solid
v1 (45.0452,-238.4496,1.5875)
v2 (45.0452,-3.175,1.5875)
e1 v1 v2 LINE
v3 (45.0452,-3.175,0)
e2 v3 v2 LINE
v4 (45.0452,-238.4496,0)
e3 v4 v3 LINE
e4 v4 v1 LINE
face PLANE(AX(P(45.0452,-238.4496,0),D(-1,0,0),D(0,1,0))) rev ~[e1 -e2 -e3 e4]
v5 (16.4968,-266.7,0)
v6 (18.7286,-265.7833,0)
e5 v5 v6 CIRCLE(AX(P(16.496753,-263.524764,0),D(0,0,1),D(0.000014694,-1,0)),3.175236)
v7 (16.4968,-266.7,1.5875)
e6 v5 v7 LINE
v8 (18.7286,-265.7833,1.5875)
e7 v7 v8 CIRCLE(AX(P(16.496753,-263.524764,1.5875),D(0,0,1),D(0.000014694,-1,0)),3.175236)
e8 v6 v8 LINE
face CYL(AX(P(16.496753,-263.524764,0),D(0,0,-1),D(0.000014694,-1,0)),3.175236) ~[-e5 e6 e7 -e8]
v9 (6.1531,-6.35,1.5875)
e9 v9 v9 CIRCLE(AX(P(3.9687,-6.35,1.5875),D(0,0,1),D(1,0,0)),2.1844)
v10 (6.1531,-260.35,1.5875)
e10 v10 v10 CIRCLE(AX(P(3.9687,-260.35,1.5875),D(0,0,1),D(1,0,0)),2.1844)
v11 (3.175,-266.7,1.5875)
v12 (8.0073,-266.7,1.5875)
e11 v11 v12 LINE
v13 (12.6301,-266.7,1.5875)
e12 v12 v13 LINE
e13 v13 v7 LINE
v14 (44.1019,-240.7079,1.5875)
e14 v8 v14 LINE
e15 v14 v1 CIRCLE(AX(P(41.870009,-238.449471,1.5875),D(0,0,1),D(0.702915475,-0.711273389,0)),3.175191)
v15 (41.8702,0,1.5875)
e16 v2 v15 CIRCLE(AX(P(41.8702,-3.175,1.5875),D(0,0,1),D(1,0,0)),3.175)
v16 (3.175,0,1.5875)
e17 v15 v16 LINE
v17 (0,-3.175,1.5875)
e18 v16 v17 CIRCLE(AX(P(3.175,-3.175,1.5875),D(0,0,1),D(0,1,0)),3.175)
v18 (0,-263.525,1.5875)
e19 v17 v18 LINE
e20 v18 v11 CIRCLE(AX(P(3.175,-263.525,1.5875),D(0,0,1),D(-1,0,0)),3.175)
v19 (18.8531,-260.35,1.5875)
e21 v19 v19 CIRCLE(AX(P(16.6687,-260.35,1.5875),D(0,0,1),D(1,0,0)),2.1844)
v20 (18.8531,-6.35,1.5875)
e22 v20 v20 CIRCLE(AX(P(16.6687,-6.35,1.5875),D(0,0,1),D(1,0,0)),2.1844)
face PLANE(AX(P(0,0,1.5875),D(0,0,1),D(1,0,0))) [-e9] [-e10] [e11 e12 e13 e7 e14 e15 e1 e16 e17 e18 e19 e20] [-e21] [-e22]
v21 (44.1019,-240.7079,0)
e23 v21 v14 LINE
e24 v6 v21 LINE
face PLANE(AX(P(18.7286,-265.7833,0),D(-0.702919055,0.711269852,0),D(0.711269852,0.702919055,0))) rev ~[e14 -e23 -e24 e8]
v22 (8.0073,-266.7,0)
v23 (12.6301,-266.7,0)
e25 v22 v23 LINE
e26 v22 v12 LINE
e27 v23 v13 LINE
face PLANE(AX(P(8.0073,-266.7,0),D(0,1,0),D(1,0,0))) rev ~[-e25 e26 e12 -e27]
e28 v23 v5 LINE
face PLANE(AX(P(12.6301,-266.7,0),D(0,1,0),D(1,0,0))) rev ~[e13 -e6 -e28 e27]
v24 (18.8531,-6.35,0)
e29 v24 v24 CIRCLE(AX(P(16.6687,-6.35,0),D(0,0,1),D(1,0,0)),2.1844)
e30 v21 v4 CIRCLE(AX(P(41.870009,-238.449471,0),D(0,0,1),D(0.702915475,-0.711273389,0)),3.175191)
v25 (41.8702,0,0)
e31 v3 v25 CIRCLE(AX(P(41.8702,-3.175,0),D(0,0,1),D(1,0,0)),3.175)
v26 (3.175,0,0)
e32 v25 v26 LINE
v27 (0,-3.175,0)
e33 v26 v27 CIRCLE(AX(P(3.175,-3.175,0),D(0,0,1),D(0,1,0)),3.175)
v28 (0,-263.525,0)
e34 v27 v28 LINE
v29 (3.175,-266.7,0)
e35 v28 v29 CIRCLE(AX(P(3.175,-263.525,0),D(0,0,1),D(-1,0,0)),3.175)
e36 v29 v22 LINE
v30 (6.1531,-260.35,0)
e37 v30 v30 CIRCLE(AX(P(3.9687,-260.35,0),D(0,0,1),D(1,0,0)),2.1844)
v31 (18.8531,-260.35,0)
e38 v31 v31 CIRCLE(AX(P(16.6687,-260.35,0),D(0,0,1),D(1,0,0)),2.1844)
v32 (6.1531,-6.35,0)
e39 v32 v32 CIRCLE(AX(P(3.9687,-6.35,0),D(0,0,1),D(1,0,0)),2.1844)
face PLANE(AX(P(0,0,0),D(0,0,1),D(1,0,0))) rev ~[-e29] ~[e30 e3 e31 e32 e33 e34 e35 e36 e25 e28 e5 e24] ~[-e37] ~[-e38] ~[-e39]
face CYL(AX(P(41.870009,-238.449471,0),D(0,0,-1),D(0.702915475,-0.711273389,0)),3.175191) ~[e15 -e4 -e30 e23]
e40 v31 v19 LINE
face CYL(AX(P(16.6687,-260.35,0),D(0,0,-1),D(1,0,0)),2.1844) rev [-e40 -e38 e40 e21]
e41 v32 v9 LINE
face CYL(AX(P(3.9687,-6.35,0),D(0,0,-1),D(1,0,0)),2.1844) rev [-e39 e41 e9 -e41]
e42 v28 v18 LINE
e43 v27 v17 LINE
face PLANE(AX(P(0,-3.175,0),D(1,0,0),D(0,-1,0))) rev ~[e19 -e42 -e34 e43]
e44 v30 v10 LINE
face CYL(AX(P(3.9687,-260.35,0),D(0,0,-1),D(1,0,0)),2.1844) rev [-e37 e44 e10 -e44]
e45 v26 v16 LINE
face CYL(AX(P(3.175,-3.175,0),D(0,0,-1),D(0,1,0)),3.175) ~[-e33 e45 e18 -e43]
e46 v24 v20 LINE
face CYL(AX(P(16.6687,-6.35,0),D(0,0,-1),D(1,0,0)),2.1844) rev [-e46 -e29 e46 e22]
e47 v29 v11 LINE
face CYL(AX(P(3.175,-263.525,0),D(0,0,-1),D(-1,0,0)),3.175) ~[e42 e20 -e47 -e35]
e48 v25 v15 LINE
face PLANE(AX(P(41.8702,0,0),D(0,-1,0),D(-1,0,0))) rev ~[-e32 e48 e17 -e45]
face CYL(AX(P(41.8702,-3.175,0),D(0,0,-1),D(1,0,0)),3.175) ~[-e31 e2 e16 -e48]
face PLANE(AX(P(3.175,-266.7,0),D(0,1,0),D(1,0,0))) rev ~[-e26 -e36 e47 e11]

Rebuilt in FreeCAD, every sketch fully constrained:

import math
import FreeCAD as App
import Part
import Sketcher
from FreeCAD import Vector
Q = App.Units.Quantity

doc = App.newDocument("Part")
body = doc.addObject("PartDesign::Body", "Body")

sketch1 = body.newObject("Sketcher::SketchObject", "Sketch")
sketch1.AttachmentSupport = (doc.getObject("XY_Plane"), [""])
sketch1.MapMode = "FlatFace"
sketch1.addGeometry([
    Part.ArcOfCircle(Part.Circle(Vector(3.2, -263.5, 0), Vector(0, 0, 1), 3.2), math.radians(180), math.radians(270)),
    Part.LineSegment(Vector(3.2, -266.7, 0), Vector(16.5, -266.7, 0)),
    Part.ArcOfCircle(Part.Circle(Vector(16.5, -263.5, 0), Vector(0, 0, 1), 3.2), math.radians(-90), math.radians(-45)),
    Part.LineSegment(Vector(18.7, -265.8, 0), Vector(44.1, -240.7, 0)),
    Part.ArcOfCircle(Part.Circle(Vector(41.9, -238.4, 0), Vector(0, 0, 1), 3.2), math.radians(-45), math.radians(0)),
    Part.LineSegment(Vector(45, -238.4, 0), Vector(45, -3.2, 0)),
    Part.ArcOfCircle(Part.Circle(Vector(41.9, -3.2, 0), Vector(0, 0, 1), 3.2), math.radians(0), math.radians(90)),
    Part.LineSegment(Vector(41.9, 0, 0), Vector(3.2, 0, 0)),
    Part.ArcOfCircle(Part.Circle(Vector(3.2, -3.2, 0), Vector(0, 0, 1), 3.2), math.radians(90), math.radians(180)),
    Part.LineSegment(Vector(0, -3.2, 0), Vector(0, -263.5, 0)),
    Part.Circle(Vector(4, -260.4, 0), Vector(0, 0, 1), 2.2),
    Part.Circle(Vector(16.7, -260.4, 0), Vector(0, 0, 1), 2.2),
    Part.Circle(Vector(4, -6.3, 0), Vector(0, 0, 1), 2.2),
    Part.Circle(Vector(16.7, -6.3, 0), Vector(0, 0, 1), 2.2),
], False)
sketch1.addConstraint([
    Sketcher.Constraint("Tangent", 0, 2, 1, 1),
    Sketcher.Constraint("Tangent", 1, 2, 2, 1),
    Sketcher.Constraint("Tangent", 2, 2, 3, 1),
    Sketcher.Constraint("Tangent", 3, 2, 4, 1),
    Sketcher.Constraint("Tangent", 4, 2, 5, 1),
    Sketcher.Constraint("Tangent", 5, 2, 6, 1),
    Sketcher.Constraint("Tangent", 6, 2, 7, 1),
    Sketcher.Constraint("Tangent", 7, 2, 8, 1),
    Sketcher.Constraint("Tangent", 8, 2, 9, 1),
    Sketcher.Constraint("Tangent", 9, 2, 0, 1),
    Sketcher.Constraint("Horizontal", 1),
    Sketcher.Constraint("Vertical", 5),
    Sketcher.Constraint("Horizontal", 7),
    Sketcher.Constraint("Vertical", 9),
    Sketcher.Constraint("Equal", 0, 2),
    Sketcher.Constraint("Equal", 2, 4),
    Sketcher.Constraint("Equal", 4, 6),
    Sketcher.Constraint("Equal", 6, 8),
    Sketcher.Constraint("Equal", 10, 11),
    Sketcher.Constraint("Equal", 11, 12),
    Sketcher.Constraint("Equal", 12, 13),
    Sketcher.Constraint("PointOnObject", 6, 2, -1),
    Sketcher.Constraint("PointOnObject", 8, 2, -2),
    Sketcher.Constraint("Horizontal", 10, 3, 11, 3),
    Sketcher.Constraint("Horizontal", 12, 3, 13, 3),
    Sketcher.Constraint("Vertical", 10, 3, 12, 3),
    Sketcher.Constraint("Vertical", 11, 3, 13, 3),
    Sketcher.Constraint("Radius", 0, Q("0.125 in")),
    Sketcher.Constraint("Diameter", 10, Q("0.172 in")),
    Sketcher.Constraint("DistanceY", 0, 3, 10, 3, Q("0.125 in")),
    Sketcher.Constraint("DistanceY", 12, 3, 8, 3, Q("0.125 in")),
    Sketcher.Constraint("DistanceY", 10, 3, 12, 3, Q("10 in")),
    Sketcher.Constraint("DistanceX", 10, 3, 11, 3, Q("0.5 in")),
    Sketcher.Constraint("DistanceX", -1, 1, 10, 3, Q("0.156248 in")),
    Sketcher.Constraint("DistanceX", 1, 1, 1, 2, 13.3218),
    Sketcher.Constraint("DistanceX", 7, 2, 7, 1, 38.6952),
    Sketcher.Constraint("DistanceY", 5, 1, 5, 2, 235.2746),
])
pad1 = body.newObject("PartDesign::Pad", "Pad")
pad1.Profile = sketch1
pad1.Length = Q("0.0625 in")

doc.recompute()
